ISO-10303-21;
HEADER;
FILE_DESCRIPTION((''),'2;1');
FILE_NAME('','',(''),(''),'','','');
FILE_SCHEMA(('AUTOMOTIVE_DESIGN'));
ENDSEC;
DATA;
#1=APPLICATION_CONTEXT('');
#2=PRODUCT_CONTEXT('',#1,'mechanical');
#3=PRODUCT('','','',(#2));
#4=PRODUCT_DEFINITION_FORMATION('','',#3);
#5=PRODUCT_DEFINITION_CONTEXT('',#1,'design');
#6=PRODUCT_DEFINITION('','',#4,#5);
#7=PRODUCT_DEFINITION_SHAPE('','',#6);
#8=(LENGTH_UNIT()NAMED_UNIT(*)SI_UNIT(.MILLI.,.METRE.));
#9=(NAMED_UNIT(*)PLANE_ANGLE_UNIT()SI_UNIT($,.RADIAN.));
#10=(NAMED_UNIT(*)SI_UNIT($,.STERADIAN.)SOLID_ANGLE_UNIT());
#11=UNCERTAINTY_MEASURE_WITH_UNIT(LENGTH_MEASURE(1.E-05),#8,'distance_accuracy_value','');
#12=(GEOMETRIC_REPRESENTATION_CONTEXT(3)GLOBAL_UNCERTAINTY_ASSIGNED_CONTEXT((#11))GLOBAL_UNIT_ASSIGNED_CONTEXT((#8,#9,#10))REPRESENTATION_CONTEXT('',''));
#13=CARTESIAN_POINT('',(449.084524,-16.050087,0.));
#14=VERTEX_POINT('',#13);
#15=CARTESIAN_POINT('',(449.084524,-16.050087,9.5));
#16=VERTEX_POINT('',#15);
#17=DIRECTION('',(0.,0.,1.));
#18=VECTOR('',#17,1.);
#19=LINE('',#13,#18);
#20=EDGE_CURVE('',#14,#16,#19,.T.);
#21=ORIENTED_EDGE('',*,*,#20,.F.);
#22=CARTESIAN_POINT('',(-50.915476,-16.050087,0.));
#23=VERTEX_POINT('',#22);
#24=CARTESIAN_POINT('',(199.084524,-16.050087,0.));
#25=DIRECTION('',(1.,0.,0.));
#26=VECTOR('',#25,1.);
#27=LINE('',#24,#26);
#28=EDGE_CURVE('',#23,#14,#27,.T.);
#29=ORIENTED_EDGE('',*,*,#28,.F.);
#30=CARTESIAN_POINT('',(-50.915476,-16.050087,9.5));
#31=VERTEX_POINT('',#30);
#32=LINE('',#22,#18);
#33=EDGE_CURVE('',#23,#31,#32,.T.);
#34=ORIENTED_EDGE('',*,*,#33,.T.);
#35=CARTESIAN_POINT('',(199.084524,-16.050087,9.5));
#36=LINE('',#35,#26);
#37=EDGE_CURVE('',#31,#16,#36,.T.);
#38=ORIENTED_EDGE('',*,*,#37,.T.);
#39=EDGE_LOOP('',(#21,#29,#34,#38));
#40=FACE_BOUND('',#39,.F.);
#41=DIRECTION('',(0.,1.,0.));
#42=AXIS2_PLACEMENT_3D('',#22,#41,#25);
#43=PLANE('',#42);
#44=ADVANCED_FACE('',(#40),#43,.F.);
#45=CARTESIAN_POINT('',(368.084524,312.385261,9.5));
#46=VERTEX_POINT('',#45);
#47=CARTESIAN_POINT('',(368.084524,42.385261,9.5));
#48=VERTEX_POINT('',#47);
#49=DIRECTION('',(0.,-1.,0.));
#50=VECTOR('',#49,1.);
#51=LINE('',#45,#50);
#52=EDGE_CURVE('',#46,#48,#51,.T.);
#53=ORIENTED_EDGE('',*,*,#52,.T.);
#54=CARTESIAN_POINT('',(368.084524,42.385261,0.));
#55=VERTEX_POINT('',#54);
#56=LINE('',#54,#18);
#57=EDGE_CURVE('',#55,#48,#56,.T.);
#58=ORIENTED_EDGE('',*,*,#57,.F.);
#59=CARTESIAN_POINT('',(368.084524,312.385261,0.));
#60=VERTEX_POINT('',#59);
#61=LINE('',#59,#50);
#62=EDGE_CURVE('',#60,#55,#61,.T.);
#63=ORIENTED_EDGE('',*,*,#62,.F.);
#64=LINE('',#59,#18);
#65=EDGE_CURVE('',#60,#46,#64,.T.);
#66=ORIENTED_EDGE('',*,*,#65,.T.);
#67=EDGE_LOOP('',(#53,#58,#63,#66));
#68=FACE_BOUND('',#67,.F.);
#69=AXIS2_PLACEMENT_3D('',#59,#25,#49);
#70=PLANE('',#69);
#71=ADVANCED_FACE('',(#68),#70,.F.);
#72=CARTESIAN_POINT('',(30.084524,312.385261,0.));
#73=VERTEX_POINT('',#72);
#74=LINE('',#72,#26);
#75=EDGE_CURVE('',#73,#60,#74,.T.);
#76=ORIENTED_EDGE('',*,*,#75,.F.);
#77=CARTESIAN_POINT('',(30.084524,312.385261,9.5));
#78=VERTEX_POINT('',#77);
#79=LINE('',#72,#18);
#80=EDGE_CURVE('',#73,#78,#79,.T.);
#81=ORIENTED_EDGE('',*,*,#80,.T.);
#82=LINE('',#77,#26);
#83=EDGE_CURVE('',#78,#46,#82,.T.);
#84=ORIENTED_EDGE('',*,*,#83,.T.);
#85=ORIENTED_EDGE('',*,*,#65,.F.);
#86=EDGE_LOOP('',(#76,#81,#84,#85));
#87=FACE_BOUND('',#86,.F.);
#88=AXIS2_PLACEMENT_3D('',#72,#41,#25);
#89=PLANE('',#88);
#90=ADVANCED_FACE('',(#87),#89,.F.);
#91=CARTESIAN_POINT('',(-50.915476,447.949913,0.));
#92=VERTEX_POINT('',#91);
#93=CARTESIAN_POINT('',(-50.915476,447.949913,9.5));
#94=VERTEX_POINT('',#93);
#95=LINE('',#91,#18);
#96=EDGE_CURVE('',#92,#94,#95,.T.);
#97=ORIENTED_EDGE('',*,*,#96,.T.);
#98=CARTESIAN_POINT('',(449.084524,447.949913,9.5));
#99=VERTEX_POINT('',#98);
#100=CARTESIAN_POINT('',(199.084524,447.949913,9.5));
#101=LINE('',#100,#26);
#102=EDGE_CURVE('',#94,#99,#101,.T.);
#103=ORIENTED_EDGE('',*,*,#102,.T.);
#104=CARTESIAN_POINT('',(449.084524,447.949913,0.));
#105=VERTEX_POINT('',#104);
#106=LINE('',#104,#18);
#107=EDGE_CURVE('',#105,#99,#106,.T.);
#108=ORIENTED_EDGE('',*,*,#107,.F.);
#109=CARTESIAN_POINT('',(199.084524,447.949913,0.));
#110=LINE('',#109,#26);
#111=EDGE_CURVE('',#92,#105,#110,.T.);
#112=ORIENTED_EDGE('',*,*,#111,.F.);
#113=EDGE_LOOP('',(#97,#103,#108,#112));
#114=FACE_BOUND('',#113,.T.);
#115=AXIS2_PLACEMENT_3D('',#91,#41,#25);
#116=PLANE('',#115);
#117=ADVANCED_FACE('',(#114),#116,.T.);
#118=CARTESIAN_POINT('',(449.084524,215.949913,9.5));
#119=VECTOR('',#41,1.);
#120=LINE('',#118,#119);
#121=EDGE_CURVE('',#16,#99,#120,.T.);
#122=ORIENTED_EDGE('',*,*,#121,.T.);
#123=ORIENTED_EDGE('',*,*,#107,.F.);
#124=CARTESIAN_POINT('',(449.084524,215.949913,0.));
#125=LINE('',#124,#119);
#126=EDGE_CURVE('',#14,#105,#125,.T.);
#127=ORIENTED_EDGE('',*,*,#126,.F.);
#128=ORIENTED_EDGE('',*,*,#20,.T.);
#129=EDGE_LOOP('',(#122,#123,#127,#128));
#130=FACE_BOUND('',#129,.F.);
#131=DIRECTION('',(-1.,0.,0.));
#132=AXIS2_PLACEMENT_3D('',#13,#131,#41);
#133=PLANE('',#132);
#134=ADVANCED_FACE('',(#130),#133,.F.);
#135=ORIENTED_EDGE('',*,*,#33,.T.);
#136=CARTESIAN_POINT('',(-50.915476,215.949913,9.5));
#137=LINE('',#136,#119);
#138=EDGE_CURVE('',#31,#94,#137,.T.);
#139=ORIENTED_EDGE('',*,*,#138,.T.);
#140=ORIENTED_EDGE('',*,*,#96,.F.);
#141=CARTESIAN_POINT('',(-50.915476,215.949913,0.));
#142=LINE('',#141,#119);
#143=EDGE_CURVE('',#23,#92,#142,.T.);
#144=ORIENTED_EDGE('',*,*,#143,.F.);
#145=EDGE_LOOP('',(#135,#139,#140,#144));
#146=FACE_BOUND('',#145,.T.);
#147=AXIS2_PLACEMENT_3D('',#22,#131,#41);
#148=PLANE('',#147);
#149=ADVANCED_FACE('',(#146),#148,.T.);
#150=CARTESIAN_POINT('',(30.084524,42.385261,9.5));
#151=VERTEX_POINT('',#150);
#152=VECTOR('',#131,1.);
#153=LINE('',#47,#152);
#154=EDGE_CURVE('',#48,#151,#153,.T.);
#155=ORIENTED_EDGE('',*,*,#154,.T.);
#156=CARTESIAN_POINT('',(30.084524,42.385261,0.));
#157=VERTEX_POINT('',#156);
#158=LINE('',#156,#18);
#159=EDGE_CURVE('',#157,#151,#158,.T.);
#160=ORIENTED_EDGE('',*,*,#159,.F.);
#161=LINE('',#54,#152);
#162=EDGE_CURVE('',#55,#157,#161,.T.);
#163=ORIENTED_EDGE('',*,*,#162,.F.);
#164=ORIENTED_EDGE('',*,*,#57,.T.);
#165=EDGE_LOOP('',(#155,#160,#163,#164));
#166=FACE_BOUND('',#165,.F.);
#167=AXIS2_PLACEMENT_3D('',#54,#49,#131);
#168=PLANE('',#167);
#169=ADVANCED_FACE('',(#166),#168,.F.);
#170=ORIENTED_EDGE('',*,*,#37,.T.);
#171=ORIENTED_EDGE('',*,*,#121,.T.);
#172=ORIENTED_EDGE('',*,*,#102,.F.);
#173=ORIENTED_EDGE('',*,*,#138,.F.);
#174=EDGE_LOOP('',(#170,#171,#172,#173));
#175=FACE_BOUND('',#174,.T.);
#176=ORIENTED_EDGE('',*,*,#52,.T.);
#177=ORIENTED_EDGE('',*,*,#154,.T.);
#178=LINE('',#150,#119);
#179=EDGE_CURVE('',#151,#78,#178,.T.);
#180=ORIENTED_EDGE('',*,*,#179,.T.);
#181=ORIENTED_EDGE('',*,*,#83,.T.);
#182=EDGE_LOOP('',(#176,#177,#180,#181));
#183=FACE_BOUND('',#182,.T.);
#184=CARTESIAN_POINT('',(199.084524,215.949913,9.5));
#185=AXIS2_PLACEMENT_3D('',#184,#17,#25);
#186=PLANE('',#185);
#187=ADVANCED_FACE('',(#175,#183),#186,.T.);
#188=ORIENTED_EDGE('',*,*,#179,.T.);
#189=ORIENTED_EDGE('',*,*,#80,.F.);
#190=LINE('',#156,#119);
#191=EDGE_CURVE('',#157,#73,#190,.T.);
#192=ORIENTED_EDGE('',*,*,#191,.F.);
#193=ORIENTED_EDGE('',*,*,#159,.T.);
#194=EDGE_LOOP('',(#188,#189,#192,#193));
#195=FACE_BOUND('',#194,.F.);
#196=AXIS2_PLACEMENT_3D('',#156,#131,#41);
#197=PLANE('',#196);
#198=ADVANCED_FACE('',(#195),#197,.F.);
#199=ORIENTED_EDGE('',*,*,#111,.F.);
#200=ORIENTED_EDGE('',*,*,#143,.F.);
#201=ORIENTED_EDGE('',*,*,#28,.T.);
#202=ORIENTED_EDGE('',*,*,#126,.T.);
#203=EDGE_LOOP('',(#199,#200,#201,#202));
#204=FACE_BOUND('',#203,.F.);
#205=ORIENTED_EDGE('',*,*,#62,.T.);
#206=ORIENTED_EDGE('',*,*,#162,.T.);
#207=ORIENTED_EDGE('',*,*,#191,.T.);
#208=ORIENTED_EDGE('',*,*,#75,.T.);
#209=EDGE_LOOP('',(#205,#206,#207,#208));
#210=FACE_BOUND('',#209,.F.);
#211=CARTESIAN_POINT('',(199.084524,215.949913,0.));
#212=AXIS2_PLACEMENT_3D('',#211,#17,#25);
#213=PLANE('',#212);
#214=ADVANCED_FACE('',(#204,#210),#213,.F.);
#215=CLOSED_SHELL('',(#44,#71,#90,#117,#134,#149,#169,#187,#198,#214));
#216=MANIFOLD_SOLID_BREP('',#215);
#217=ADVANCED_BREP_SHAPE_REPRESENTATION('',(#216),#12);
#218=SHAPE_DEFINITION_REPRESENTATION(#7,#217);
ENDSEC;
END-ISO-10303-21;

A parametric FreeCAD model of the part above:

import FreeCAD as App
import Part
import Sketcher
from FreeCAD import Vector

doc = App.newDocument("Part")
body = doc.addObject("PartDesign::Body", "Body")

sketch1 = doc.addObject("Sketcher::SketchObject", "Sketch")
body.addObject(sketch1)
sketch1.AttachmentSupport = (doc.XY_Plane, [""])
sketch1.MapMode = "FlatFace"
sketch1.addGeometry(Part.LineSegment(Vector(-50.915476, 447.949913, 0), Vector(-50.915476, -16.050087, 0)), False)
sketch1.addGeometry(Part.LineSegment(Vector(-50.915476, -16.050087, 0), Vector(449.084524, -16.050087, 0)), False)
sketch1.addGeometry(Part.LineSegment(Vector(449.084524, -16.050087, 0), Vector(449.084524, 447.949913, 0)), False)
sketch1.addGeometry(Part.LineSegment(Vector(449.084524, 447.949913, 0), Vector(-50.915476, 447.949913, 0)), False)
sketch1.addGeometry(Part.LineSegment(Vector(30.084524, 42.385261, 0), Vector(30.084524, 312.385261, 0)), False)
sketch1.addGeometry(Part.LineSegment(Vector(30.084524, 312.385261, 0), Vector(368.084524, 312.385261, 0)), False)
sketch1.addGeometry(Part.LineSegment(Vector(368.084524, 312.385261, 0), Vector(368.084524, 42.385261, 0)), False)
sketch1.addGeometry(Part.LineSegment(Vector(368.084524, 42.385261, 0), Vector(30.084524, 42.385261, 0)), False)
sketch1.addConstraint(Sketcher.Constraint("Coincident", 0, 2, 1, 1))
sketch1.addConstraint(Sketcher.Constraint("Coincident", 1, 2, 2, 1))
sketch1.addConstraint(Sketcher.Constraint("Coincident", 2, 2, 3, 1))
sketch1.addConstraint(Sketcher.Constraint("Coincident", 3, 2, 0, 1))
sketch1.addConstraint(Sketcher.Constraint("Coincident", 4, 2, 5, 1))
sketch1.addConstraint(Sketcher.Constraint("Coincident", 5, 2, 6, 1))
sketch1.addConstraint(Sketcher.Constraint("Coincident", 6, 2, 7, 1))
sketch1.addConstraint(Sketcher.Constraint("Coincident", 7, 2, 4, 1))
sketch1.addConstraint(Sketcher.Constraint("Vertical", 0))
sketch1.addConstraint(Sketcher.Constraint("Horizontal", 1))
sketch1.addConstraint(Sketcher.Constraint("Vertical", 2))
sketch1.addConstraint(Sketcher.Constraint("Horizontal", 3))
sketch1.addConstraint(Sketcher.Constraint("Vertical", 4))
sketch1.addConstraint(Sketcher.Constraint("Horizontal", 5))
sketch1.addConstraint(Sketcher.Constraint("Vertical", 6))
sketch1.addConstraint(Sketcher.Constraint("Horizontal", 7))
sketch1.addConstraint(Sketcher.Constraint("DistanceX", 1, 1, 1, 2, 500.0))
sketch1.addConstraint(Sketcher.Constraint("DistanceX", 5, 1, 5, 2, 338.0))
sketch1.addConstraint(Sketcher.Constraint("DistanceY", 0, 2, 0, 1, 464.0))
sketch1.addConstraint(Sketcher.Constraint("DistanceY", 4, 1, 4, 2, 270.0))
sketch1.addConstraint(Sketcher.Constraint("DistanceX", 3, 2, 4, 2, 81.0))
sketch1.addConstraint(Sketcher.Constraint("DistanceY", -1, 1, 4, 2, 312.385261))
sketch1.addConstraint(Sketcher.Constraint("DistanceY", 4, 2, 3, 2, 135.564652))
sketch1.addConstraint(Sketcher.Constraint("DistanceX", 0, 2, -1, 1, 50.915476))
pad1 = doc.addObject("PartDesign::Pad", "Pad")
body.addObject(pad1)
pad1.Profile = sketch1
pad1.Length = 9.5

doc.recompute()
